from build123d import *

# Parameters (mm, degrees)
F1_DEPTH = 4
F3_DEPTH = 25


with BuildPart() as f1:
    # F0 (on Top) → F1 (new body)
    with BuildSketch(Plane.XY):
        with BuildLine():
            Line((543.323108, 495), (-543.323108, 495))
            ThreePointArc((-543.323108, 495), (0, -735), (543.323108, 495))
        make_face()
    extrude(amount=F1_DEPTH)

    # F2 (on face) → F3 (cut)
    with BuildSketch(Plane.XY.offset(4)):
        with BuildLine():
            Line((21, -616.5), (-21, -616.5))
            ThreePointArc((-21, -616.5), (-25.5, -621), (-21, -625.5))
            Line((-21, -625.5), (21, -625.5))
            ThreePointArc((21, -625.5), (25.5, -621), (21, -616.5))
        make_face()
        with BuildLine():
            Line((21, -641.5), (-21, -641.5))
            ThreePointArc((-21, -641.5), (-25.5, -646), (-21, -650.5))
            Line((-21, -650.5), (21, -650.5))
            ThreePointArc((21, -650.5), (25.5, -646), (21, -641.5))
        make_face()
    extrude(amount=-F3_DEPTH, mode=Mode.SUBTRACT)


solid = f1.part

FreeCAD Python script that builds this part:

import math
import FreeCAD as App
import Part
import Sketcher

doc = App.newDocument("Part")
params = doc.addObject("Spreadsheet::Sheet", "Params")
for row, (alias, value) in enumerate([
    ("sketch1_radius", "735 mm"),
    ("pad1_length", "4 mm"),
    ("sketch2_radius", "4.5 mm"),
    ("sketch2_width", "42 mm"),
    ("pocket1_length", "25 mm"),
], start=1):
    params.set(f"A{row}", alias)
    params.set(f"B{row}", "=" + value)
    params.setAlias(f"B{row}", alias)

body = doc.addObject("PartDesign::Body", "Body")

sketch1 = body.newObject("Sketcher::SketchObject", "Sketch")
sketch1.AttachmentSupport = (doc.getObject("XY_Plane"), [""])
sketch1.MapMode = "FlatFace"
sketch1.addGeometry(Part.LineSegment(App.Vector(543, 495, 0), App.Vector(-543, 495, 0)), False)
sketch1.addGeometry(Part.ArcOfCircle(Part.Circle(App.Vector(0, 0, 0), App.Vector(0, 0, 1), 735), math.radians(138), math.radians(402)), False)
sketch1.addConstraint(Sketcher.Constraint("Coincident", 0, 1, 1, 2))
sketch1.addConstraint(Sketcher.Constraint("Coincident", 1, 1, 0, 2))
sketch1.addConstraint(Sketcher.Constraint("Horizontal", 0))
sketch1.addConstraint(Sketcher.Constraint("Coincident", 1, 3, -1, 1))
sketch1.addConstraint(Sketcher.Constraint("Radius", 1, 735.0))
sketch1.addConstraint(Sketcher.Constraint("DistanceY", -1, 1, 0, 1, 495.0))
sketch1.setExpression("Constraints[4]", "Params.sketch1_radius")
pad1 = body.newObject("PartDesign::Pad", "Pad")
pad1.Profile = sketch1
pad1.setExpression("Length", "Params.pad1_length")

sketch2 = body.newObject("Sketcher::SketchObject", "Sketch001")
sketch2.AttachmentSupport = (doc.getObject("XY_Plane"), [""])
sketch2.MapMode = "FlatFace"
sketch2.AttachmentOffset = App.Placement(App.Vector(0, 0, 4), App.Rotation())
sketch2.addGeometry(Part.LineSegment(App.Vector(21, -616.5, 0), App.Vector(-21, -616.5, 0)), False)
sketch2.addGeometry(Part.ArcOfCircle(Part.Circle(App.Vector(-21, -621, 0), App.Vector(0, 0, 1), 4.5), math.radians(90), math.radians(270)), False)
sketch2.addGeometry(Part.LineSegment(App.Vector(-21, -625.5, 0), App.Vector(21, -625.5, 0)), False)
sketch2.addGeometry(Part.ArcOfCircle(Part.Circle(App.Vector(21, -621, 0), App.Vector(0, 0, 1), 4.5), math.radians(-90), math.radians(90)), False)
sketch2.addGeometry(Part.LineSegment(App.Vector(21, -641.5, 0), App.Vector(-21, -641.5, 0)), False)
sketch2.addGeometry(Part.ArcOfCircle(Part.Circle(App.Vector(-21, -646, 0), App.Vector(0, 0, 1), 4.5), math.radians(90), math.radians(270)), False)
sketch2.addGeometry(Part.LineSegment(App.Vector(-21, -650.5, 0), App.Vector(21, -650.5, 0)), False)
sketch2.addGeometry(Part.ArcOfCircle(Part.Circle(App.Vector(21, -646, 0), App.Vector(0, 0, 1), 4.5), math.radians(-90), math.radians(90)), False)
sketch2.addConstraint(Sketcher.Constraint("Tangent", 0, 2, 1, 1))
sketch2.addConstraint(Sketcher.Constraint("Tangent", 1, 2, 2, 1))
sketch2.addConstraint(Sketcher.Constraint("Tangent", 2, 2, 3, 1))
sketch2.addConstraint(Sketcher.Constraint("Tangent", 3, 2, 0, 1))
sketch2.addConstraint(Sketcher.Constraint("Tangent", 4, 2, 5, 1))
sketch2.addConstraint(Sketcher.Constraint("Tangent", 5, 2, 6, 1))
sketch2.addConstraint(Sketcher.Constraint("Tangent", 6, 2, 7, 1))
sketch2.addConstraint(Sketcher.Constraint("Tangent", 7, 2, 4, 1))
sketch2.addConstraint(Sketcher.Constraint("Horizontal", 0))
sketch2.addConstraint(Sketcher.Constraint("Horizontal", 2))
sketch2.addConstraint(Sketcher.Constraint("Horizontal", 4))
sketch2.addConstraint(Sketcher.Constraint("Horizontal", 6))
sketch2.addConstraint(Sketcher.Constraint("Equal", 3, 5))
sketch2.addConstraint(Sketcher.Constraint("Vertical", 1, 3, 5, 3))
sketch2.addConstraint(Sketcher.Constraint("Vertical", 3, 3, 7, 3))
sketch2.addConstraint(Sketcher.Constraint("Radius", 1, 4.5))
sketch2.addConstraint(Sketcher.Constraint("DistanceX", 0, 2, 0, 1, 42.0))
sketch2.addConstraint(Sketcher.Constraint("DistanceX", 1, 3, -1, 1, 21.0))
sketch2.addConstraint(Sketcher.Constraint("DistanceY", 1, 3, -1, 1, 621.0))
sketch2.addConstraint(Sketcher.Constraint("DistanceY", 5, 3, -1, 1, 646.0))
sketch2.setExpression("Constraints[15]", "Params.sketch2_radius")
sketch2.setExpression("Constraints[16]", "Params.sketch2_width")
pocket1 = body.newObject("PartDesign::Pocket", "Pocket")
pocket1.Profile = sketch2
pocket1.setExpression("Length", "Params.pocket1_length")

doc.recompute()
